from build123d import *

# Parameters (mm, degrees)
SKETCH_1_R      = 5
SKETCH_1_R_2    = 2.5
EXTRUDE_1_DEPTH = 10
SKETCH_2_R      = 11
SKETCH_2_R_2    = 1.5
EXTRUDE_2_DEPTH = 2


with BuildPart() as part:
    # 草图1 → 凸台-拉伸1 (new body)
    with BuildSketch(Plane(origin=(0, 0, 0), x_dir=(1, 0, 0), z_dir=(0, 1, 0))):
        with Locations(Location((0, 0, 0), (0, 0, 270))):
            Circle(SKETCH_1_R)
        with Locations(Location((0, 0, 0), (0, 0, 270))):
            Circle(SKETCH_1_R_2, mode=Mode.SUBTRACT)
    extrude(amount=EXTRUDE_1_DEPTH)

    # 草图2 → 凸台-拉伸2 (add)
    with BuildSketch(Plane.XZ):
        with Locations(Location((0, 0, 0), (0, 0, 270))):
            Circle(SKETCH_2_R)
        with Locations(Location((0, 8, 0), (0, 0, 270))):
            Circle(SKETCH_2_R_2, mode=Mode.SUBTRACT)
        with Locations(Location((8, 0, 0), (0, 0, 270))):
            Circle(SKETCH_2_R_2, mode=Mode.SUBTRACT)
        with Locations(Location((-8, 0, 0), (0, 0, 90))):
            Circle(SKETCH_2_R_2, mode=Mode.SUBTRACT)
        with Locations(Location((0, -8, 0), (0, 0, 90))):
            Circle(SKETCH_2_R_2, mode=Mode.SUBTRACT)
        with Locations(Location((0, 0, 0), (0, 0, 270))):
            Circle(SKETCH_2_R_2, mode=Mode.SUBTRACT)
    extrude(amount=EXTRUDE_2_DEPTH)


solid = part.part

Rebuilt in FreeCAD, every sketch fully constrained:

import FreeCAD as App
import Part
import Sketcher

doc = App.newDocument("Part")
body = doc.addObject("PartDesign::Body", "Body")

# Sketch on XZ plane
sketch1 = body.newObject("Sketcher::SketchObject", "Sketch")
sketch1.AttachmentSupport = (doc.getObject("XZ_Plane"), [""])
sketch1.MapMode = "FlatFace"
sketch1.addGeometry(Part.Circle(App.Vector(0, 0, 0), App.Vector(0, 0, 1), 5), False)
sketch1.addGeometry(Part.Circle(App.Vector(0, 0, 0), App.Vector(0, 0, 1), 2.5), False)
sketch1.addConstraint(Sketcher.Constraint("Coincident", 0, 3, -1, 1))
sketch1.addConstraint(Sketcher.Constraint("Coincident", 1, 3, -1, 1))
sketch1.addConstraint(Sketcher.Constraint("Diameter", 0, 10.0))
sketch1.addConstraint(Sketcher.Constraint("Diameter", 1, 5.0))
pad1 = body.newObject("PartDesign::Pad", "Pad")
pad1.Profile = sketch1
pad1.Length = 10
pad1.Reversed = True

# Sketch on XZ plane
sketch2 = body.newObject("Sketcher::SketchObject", "Sketch001")
sketch2.AttachmentSupport = (doc.getObject("XZ_Plane"), [""])
sketch2.MapMode = "FlatFace"
sketch2.addGeometry(Part.Circle(App.Vector(0, 0, 0), App.Vector(0, 0, 1), 11), False)
sketch2.addGeometry(Part.Circle(App.Vector(0, 8, 0), App.Vector(0, 0, 1), 1.5), False)
sketch2.addGeometry(Part.Circle(App.Vector(-8, 0, 0), App.Vector(0, 0, 1), 1.5), False)
sketch2.addGeometry(Part.Circle(App.Vector(8, 0, 0), App.Vector(0, 0, 1), 1.5), False)
sketch2.addGeometry(Part.Circle(App.Vector(0, 0, 0), App.Vector(0, 0, 1), 1.5), False)
sketch2.addGeometry(Part.Circle(App.Vector(0, -8, 0), App.Vector(0, 0, 1), 1.5), False)
sketch2.addConstraint(Sketcher.Constraint("Coincident", 0, 3, -1, 1))
sketch2.addConstraint(Sketcher.Constraint("Coincident", 4, 3, -1, 1))
sketch2.addConstraint(Sketcher.Constraint("Equal", 1, 2))
sketch2.addConstraint(Sketcher.Constraint("Equal", 2, 3))
sketch2.addConstraint(Sketcher.Constraint("Equal", 3, 4))
sketch2.addConstraint(Sketcher.Constraint("Equal", 4, 5))
sketch2.addConstraint(Sketcher.Constraint("Symmetric", 2, 3, 3, 3, -1, 1))
sketch2.addConstraint(Sketcher.Constraint("Symmetric", 1, 3, 5, 3, -1, 1))
sketch2.addConstraint(Sketcher.Constraint("PointOnObject", 1, 3, -2))
sketch2.addConstraint(Sketcher.Constraint("PointOnObject", 2, 3, -1))
sketch2.addConstraint(Sketcher.Constraint("Diameter", 0, 22.0))
sketch2.addConstraint(Sketcher.Constraint("Diameter", 1, 3.0))
sketch2.addConstraint(Sketcher.Constraint("DistanceY", -1, 1, 1, 3, 8.0))
sketch2.addConstraint(Sketcher.Constraint("DistanceX", 2, 3, -1, 1, 8.0))
pad2 = body.newObject("PartDesign::Pad", "Pad001")
pad2.Profile = sketch2
pad2.Length = 2

doc.recompute()
